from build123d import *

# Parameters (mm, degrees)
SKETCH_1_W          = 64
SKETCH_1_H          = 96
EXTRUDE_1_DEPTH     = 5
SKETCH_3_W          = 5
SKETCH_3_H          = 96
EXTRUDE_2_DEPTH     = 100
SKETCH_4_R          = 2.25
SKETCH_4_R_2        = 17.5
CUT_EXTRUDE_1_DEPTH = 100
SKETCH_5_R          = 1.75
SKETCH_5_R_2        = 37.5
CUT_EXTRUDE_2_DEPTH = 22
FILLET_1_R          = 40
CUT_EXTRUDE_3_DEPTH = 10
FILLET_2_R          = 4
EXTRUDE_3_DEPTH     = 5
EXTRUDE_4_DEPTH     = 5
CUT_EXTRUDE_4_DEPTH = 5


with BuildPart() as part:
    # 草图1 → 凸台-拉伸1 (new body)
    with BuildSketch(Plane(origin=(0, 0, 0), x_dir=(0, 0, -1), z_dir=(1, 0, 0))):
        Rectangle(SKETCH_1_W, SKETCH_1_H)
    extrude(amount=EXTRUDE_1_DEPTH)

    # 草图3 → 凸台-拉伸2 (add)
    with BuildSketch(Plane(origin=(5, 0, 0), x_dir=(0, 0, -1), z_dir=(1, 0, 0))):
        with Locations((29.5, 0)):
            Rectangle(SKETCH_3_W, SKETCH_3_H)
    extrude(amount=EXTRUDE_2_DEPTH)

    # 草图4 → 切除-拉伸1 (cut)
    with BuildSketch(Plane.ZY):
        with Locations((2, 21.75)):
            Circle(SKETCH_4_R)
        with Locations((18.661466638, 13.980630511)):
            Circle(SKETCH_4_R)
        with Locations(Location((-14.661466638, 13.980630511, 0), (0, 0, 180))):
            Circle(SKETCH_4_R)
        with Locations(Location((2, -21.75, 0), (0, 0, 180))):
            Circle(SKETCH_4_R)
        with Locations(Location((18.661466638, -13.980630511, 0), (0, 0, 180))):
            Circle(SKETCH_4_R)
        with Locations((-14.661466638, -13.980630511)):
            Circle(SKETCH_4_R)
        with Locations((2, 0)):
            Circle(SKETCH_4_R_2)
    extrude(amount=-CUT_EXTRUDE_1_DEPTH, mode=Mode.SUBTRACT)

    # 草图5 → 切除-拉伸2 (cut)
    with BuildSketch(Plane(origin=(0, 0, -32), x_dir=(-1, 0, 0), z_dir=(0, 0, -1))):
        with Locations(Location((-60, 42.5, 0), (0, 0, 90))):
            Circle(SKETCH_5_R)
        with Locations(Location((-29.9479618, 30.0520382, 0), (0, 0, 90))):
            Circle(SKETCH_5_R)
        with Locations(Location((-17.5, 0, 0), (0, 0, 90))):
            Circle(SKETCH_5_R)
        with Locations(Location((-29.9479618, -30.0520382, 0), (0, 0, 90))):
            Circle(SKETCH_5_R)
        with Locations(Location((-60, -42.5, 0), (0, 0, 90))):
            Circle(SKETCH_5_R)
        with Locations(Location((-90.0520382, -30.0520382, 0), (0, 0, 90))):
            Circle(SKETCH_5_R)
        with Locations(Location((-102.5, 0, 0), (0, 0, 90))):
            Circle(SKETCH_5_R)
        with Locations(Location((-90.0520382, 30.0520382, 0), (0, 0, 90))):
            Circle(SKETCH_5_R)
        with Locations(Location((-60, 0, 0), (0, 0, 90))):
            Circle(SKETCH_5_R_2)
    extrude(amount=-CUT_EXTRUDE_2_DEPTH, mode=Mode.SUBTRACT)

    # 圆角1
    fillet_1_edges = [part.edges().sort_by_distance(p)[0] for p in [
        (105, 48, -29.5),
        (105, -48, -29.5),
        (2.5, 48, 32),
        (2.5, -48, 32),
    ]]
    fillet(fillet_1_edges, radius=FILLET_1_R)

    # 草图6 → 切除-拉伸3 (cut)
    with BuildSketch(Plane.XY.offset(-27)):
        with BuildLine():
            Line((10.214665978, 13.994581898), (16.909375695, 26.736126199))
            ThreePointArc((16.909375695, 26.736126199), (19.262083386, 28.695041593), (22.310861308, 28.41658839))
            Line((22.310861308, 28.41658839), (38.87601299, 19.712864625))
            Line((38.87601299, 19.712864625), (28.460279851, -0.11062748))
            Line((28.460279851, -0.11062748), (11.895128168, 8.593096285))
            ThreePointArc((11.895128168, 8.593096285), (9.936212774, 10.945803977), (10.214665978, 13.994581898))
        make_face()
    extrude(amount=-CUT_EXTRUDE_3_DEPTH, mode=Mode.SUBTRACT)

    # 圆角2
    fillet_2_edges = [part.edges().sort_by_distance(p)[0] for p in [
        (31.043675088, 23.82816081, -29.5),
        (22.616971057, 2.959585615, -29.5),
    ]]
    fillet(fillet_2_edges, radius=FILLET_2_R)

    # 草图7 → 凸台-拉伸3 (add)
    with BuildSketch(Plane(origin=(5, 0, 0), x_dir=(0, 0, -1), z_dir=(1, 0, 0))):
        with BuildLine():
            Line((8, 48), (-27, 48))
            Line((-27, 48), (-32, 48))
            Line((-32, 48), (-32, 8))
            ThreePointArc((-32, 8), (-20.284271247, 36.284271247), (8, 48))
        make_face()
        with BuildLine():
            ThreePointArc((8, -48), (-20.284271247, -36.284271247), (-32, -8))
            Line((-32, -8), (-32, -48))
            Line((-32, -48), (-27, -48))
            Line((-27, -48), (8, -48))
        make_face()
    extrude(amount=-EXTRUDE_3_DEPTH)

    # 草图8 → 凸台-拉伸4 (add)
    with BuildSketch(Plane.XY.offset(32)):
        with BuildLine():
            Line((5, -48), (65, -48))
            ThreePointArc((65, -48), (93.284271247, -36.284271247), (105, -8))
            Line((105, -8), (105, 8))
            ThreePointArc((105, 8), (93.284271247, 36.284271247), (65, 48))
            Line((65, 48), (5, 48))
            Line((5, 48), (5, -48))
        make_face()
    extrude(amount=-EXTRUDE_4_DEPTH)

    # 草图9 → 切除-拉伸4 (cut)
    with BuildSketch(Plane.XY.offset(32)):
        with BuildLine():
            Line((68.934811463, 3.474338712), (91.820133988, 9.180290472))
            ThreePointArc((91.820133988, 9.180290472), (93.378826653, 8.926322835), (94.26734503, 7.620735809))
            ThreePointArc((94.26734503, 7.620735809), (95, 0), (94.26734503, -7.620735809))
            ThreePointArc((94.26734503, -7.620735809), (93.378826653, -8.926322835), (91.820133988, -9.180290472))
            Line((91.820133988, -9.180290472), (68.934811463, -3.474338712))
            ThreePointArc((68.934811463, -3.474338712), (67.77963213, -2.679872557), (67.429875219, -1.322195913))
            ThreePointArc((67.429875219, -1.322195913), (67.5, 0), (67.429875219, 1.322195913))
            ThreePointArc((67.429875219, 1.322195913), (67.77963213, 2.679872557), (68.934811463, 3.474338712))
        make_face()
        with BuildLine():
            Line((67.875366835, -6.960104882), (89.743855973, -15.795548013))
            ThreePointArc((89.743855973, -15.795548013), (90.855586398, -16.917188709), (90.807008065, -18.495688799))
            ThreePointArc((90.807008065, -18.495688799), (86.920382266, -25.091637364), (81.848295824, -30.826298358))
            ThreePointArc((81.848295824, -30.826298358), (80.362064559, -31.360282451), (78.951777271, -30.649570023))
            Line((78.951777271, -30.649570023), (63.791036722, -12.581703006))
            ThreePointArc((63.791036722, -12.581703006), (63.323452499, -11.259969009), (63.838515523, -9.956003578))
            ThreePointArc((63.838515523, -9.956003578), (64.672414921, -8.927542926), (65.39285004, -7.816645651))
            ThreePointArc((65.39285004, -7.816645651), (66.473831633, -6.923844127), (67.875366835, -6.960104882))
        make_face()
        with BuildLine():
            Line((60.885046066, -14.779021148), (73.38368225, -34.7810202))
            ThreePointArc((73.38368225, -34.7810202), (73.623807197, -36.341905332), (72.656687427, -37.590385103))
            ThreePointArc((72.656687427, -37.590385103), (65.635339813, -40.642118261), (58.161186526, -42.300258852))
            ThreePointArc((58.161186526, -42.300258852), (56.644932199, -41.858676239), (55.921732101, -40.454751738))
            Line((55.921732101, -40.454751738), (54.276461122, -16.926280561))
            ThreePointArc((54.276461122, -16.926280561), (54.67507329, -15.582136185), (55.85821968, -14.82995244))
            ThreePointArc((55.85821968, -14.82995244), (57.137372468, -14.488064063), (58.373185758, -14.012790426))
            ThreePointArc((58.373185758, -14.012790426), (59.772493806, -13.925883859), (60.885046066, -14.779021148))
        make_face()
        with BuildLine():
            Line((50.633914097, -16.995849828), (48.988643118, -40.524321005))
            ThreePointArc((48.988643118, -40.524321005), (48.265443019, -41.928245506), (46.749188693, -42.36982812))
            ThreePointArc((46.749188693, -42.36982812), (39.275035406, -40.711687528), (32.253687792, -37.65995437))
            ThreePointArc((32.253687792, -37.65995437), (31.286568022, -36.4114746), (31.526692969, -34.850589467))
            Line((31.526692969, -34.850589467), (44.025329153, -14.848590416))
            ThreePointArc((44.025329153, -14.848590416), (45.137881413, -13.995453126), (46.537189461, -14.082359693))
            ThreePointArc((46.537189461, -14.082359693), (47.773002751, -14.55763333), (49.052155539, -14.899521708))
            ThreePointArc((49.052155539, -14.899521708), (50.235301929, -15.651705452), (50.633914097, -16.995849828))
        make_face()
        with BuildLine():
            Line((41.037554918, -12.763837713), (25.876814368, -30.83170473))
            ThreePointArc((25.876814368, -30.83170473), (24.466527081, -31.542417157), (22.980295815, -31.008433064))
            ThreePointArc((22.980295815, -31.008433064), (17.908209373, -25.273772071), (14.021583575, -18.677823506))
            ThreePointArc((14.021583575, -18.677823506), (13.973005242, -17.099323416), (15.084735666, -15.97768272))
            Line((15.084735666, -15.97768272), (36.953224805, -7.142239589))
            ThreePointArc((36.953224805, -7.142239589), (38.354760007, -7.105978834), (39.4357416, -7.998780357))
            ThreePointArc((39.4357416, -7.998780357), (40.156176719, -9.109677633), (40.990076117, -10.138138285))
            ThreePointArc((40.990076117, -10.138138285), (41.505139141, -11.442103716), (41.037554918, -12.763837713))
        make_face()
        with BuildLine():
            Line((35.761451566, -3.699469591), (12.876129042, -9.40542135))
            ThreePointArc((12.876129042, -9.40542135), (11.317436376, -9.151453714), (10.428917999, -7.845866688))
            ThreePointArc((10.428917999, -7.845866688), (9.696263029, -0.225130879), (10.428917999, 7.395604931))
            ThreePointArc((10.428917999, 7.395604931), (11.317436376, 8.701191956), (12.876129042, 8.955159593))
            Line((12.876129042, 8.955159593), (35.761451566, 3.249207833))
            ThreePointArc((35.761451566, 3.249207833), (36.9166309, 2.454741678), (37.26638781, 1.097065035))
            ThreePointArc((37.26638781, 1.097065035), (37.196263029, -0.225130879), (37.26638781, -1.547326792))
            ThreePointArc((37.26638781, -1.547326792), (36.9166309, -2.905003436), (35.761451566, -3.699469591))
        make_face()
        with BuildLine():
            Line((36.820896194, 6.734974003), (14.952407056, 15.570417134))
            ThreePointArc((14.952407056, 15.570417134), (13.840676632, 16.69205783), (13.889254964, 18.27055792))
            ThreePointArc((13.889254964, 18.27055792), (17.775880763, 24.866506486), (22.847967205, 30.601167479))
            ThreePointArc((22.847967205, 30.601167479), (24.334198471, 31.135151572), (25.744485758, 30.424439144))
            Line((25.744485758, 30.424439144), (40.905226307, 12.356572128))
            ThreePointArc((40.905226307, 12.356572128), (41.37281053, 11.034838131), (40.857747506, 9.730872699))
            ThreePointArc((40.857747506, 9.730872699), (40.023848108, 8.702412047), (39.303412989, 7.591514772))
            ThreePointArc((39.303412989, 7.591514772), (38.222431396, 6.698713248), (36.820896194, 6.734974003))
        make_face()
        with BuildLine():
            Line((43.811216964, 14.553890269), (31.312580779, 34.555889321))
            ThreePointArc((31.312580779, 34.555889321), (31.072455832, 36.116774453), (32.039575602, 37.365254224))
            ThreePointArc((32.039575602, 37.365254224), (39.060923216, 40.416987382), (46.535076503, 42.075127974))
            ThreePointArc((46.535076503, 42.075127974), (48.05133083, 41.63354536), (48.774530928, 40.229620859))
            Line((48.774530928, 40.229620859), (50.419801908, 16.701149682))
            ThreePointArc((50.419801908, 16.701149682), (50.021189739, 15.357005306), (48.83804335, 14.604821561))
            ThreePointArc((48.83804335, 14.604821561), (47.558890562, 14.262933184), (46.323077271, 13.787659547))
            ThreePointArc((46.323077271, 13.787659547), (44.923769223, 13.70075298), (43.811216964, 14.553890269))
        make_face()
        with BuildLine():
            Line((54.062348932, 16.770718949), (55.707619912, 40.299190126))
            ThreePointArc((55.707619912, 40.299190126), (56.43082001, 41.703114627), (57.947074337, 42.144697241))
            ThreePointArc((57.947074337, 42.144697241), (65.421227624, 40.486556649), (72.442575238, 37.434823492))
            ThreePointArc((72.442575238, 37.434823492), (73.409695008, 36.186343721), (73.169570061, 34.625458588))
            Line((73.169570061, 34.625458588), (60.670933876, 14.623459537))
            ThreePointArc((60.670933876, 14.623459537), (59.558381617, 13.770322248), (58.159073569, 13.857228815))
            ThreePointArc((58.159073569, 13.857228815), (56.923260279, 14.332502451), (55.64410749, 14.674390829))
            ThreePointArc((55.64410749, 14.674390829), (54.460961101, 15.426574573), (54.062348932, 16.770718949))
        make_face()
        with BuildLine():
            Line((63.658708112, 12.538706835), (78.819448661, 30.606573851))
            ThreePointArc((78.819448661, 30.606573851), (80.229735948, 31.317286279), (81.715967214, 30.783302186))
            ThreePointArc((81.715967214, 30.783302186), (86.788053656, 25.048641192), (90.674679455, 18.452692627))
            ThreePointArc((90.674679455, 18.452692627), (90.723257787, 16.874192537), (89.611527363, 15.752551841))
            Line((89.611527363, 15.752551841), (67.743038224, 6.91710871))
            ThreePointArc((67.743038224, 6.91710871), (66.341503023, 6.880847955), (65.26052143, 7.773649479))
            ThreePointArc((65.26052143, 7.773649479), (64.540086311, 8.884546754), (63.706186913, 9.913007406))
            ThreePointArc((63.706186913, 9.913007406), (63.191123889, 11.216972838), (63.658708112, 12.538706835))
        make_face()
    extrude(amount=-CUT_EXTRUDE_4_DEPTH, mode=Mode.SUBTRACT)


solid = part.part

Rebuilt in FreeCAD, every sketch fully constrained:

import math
import FreeCAD as App
import Part
import Sketcher
Q = App.Units.Quantity


def edges_at(feature, points):
    """Names of the edges that pass closest to the given points."""
    edges = feature.Shape.Edges
    near = lambda p: min(range(len(edges)), key=lambda i: edges[i].distToShape(Part.Vertex(*p))[0])
    return sorted({f"Edge{near(p) + 1}" for p in points})

doc = App.newDocument("Part")
body = doc.addObject("PartDesign::Body", "Body")

sketch1 = doc.addObject("Sketcher::SketchObject", "Sketch")
body.addObject(sketch1)
sketch1.AttachmentSupport = (doc.YZ_Plane, [""])
sketch1.MapMode = "FlatFace"
sketch1.addGeometry(Part.LineSegment(App.Vector(48, 32, 0), App.Vector(-48, 32, 0)), False)
sketch1.addGeometry(Part.LineSegment(App.Vector(-48, 32, 0), App.Vector(-48, -32, 0)), False)
sketch1.addGeometry(Part.LineSegment(App.Vector(-48, -32, 0), App.Vector(48, -32, 0)), False)
sketch1.addGeometry(Part.LineSegment(App.Vector(48, -32, 0), App.Vector(48, 32, 0)), False)
sketch1.addConstraint(Sketcher.Constraint("Coincident", 0, 2, 1, 1))
sketch1.addConstraint(Sketcher.Constraint("Coincident", 1, 2, 2, 1))
sketch1.addConstraint(Sketcher.Constraint("Coincident", 2, 2, 3, 1))
sketch1.addConstraint(Sketcher.Constraint("Coincident", 3, 2, 0, 1))
sketch1.addConstraint(Sketcher.Constraint("Horizontal", 0))
sketch1.addConstraint(Sketcher.Constraint("Vertical", 1))
sketch1.addConstraint(Sketcher.Constraint("Horizontal", 2))
sketch1.addConstraint(Sketcher.Constraint("Vertical", 3))
sketch1.addConstraint(Sketcher.Constraint("Symmetric", 0, 2, 2, 2, -1, 1))
sketch1.addConstraint(Sketcher.Constraint("DistanceX", 0, 2, 0, 1, 96.0))
sketch1.addConstraint(Sketcher.Constraint("DistanceY", 1, 2, 1, 1, 64.0))
pad1 = doc.addObject("PartDesign::Pad", "Pad")
body.addObject(pad1)
pad1.Profile = sketch1
pad1.Length = 5

sketch2 = doc.addObject("Sketcher::SketchObject", "Sketch001")
body.addObject(sketch2)
sketch2.AttachmentSupport = (doc.YZ_Plane, [""])
sketch2.MapMode = "FlatFace"
sketch2.AttachmentOffset = App.Placement(App.Vector(0, 0, 5), App.Rotation())
sketch2.addGeometry(Part.LineSegment(App.Vector(48, -27, 0), App.Vector(-48, -27, 0)), False)
sketch2.addGeometry(Part.LineSegment(App.Vector(-48, -27, 0), App.Vector(-48, -32, 0)), False)
sketch2.addGeometry(Part.LineSegment(App.Vector(-48, -32, 0), App.Vector(48, -32, 0)), False)
sketch2.addGeometry(Part.LineSegment(App.Vector(48, -32, 0), App.Vector(48, -27, 0)), False)
sketch2.addConstraint(Sketcher.Constraint("Coincident", 0, 2, 1, 1))
sketch2.addConstraint(Sketcher.Constraint("Coincident", 1, 2, 2, 1))
sketch2.addConstraint(Sketcher.Constraint("Coincident", 2, 2, 3, 1))
sketch2.addConstraint(Sketcher.Constraint("Coincident", 3, 2, 0, 1))
sketch2.addConstraint(Sketcher.Constraint("Horizontal", 0))
sketch2.addConstraint(Sketcher.Constraint("Vertical", 1))
sketch2.addConstraint(Sketcher.Constraint("Horizontal", 2))
sketch2.addConstraint(Sketcher.Constraint("Vertical", 3))
sketch2.addConstraint(Sketcher.Constraint("DistanceX", 0, 2, 0, 1, 96.0))
sketch2.addConstraint(Sketcher.Constraint("DistanceY", 1, 2, 1, 1, 5.0))
sketch2.addConstraint(Sketcher.Constraint("DistanceX", 0, 2, -1, 1, 48.0))
sketch2.addConstraint(Sketcher.Constraint("DistanceY", 0, 2, -1, 1, 27.0))
pad2 = doc.addObject("PartDesign::Pad", "Pad001")
body.addObject(pad2)
pad2.Profile = sketch2
pad2.Length = 100

sketch3 = doc.addObject("Sketcher::SketchObject", "Sketch002")
body.addObject(sketch3)
sketch3.AttachmentSupport = (doc.YZ_Plane, [""])
sketch3.MapMode = "FlatFace"
sketch3.addGeometry(Part.Circle(App.Vector(21.8, 2, 0), App.Vector(0, 0, 1), 2.2), False)
sketch3.addGeometry(Part.Circle(App.Vector(14, 18.7, 0), App.Vector(0, 0, 1), 2.2), False)
sketch3.addGeometry(Part.Circle(App.Vector(14, -14.7, 0), App.Vector(0, 0, 1), 2.2), False)
sketch3.addGeometry(Part.Circle(App.Vector(-21.8, 2, 0), App.Vector(0, 0, 1), 2.2), False)
sketch3.addGeometry(Part.Circle(App.Vector(-14, 18.7, 0), App.Vector(0, 0, 1), 2.2), False)
sketch3.addGeometry(Part.Circle(App.Vector(-14, -14.7, 0), App.Vector(0, 0, 1), 2.2), False)
sketch3.addGeometry(Part.Circle(App.Vector(0, 2, 0), App.Vector(0, 0, 1), 17.5), False)
sketch3.addConstraint(Sketcher.Constraint("Equal", 0, 1))
sketch3.addConstraint(Sketcher.Constraint("Equal", 1, 2))
sketch3.addConstraint(Sketcher.Constraint("Equal", 2, 3))
sketch3.addConstraint(Sketcher.Constraint("Equal", 3, 4))
sketch3.addConstraint(Sketcher.Constraint("Equal", 4, 5))
sketch3.addConstraint(Sketcher.Constraint("Symmetric", 0, 3, 3, 3, -2))
sketch3.addConstraint(Sketcher.Constraint("Symmetric", 1, 3, 4, 3, -2))
sketch3.addConstraint(Sketcher.Constraint("Symmetric", 2, 3, 5, 3, -2))
sketch3.addConstraint(Sketcher.Constraint("PointOnObject", 6, 3, -2))
sketch3.addConstraint(Sketcher.Constraint("Horizontal", 3, 3, 6, 3))
sketch3.addConstraint(Sketcher.Constraint("Vertical", 1, 3, 2, 3))
sketch3.addConstraint(Sketcher.Constraint("Diameter", 6, 35.0))
sketch3.addConstraint(Sketcher.Constraint("Diameter", 0, 4.5))
sketch3.addConstraint(Sketcher.Constraint("DistanceY", -1, 1, 0, 3, 2.0))
sketch3.addConstraint(Sketcher.Constraint("DistanceX", 3, 3, 0, 3, 43.5))
sketch3.addConstraint(Sketcher.Constraint("DistanceX", -1, 1, 1, 3, 13.980631))
sketch3.addConstraint(Sketcher.Constraint("DistanceY", -1, 1, 1, 3, 18.661467))
sketch3.addConstraint(Sketcher.Constraint("DistanceY", 2, 3, -1, 1, 14.661467))
pocket1 = doc.addObject("PartDesign::Pocket", "Pocket")
body.addObject(pocket1)
pocket1.Profile = sketch3
pocket1.Length = 100
pocket1.Reversed = True

sketch4 = doc.addObject("Sketcher::SketchObject", "Sketch003")
body.addObject(sketch4)
sketch4.AttachmentSupport = (doc.XY_Plane, [""])
sketch4.MapMode = "FlatFace"
sketch4.AttachmentOffset = App.Placement(App.Vector(0, 0, -32), App.Rotation())
sketch4.addGeometry(Part.Circle(App.Vector(60, 42.5, 0), App.Vector(0, 0, 1), 1.8), False)
sketch4.addGeometry(Part.Circle(App.Vector(29.9, 30.1, 0), App.Vector(0, 0, 1), 1.8), False)
sketch4.addGeometry(Part.Circle(App.Vector(17.5, 0, 0), App.Vector(0, 0, 1), 1.8), False)
sketch4.addGeometry(Part.Circle(App.Vector(29.9, -30.1, 0), App.Vector(0, 0, 1), 1.8), False)
sketch4.addGeometry(Part.Circle(App.Vector(60, -42.5, 0), App.Vector(0, 0, 1), 1.8), False)
sketch4.addGeometry(Part.Circle(App.Vector(90.1, -30.1, 0), App.Vector(0, 0, 1), 1.8), False)
sketch4.addGeometry(Part.Circle(App.Vector(102.5, 0, 0), App.Vector(0, 0, 1), 1.8), False)
sketch4.addGeometry(Part.Circle(App.Vector(90.1, 30.1, 0), App.Vector(0, 0, 1), 1.8), False)
sketch4.addGeometry(Part.Circle(App.Vector(60, 0, 0), App.Vector(0, 0, 1), 37.5), False)
sketch4.addConstraint(Sketcher.Constraint("Equal", 0, 1))
sketch4.addConstraint(Sketcher.Constraint("Equal", 1, 2))
sketch4.addConstraint(Sketcher.Constraint("Equal", 2, 3))
sketch4.addConstraint(Sketcher.Constraint("Equal", 3, 4))
sketch4.addConstraint(Sketcher.Constraint("Equal", 4, 5))
sketch4.addConstraint(Sketcher.Constraint("Equal", 5, 6))
sketch4.addConstraint(Sketcher.Constraint("Equal", 6, 7))
sketch4.addConstraint(Sketcher.Constraint("Symmetric", 1, 3, 3, 3, -1))
sketch4.addConstraint(Sketcher.Constraint("Symmetric", 0, 3, 4, 3, -1))
sketch4.addConstraint(Sketcher.Constraint("Symmetric", 5, 3, 7, 3, -1))
sketch4.addConstraint(Sketcher.Constraint("PointOnObject", 2, 3, -1))
sketch4.addConstraint(Sketcher.Constraint("PointOnObject", 6, 3, -1))
sketch4.addConstraint(Sketcher.Constraint("PointOnObject", 8, 3, -1))
sketch4.addConstraint(Sketcher.Constraint("Horizontal", 3, 3, 5, 3))
sketch4.addConstraint(Sketcher.Constraint("Vertical", 4, 3, 8, 3))
sketch4.addConstraint(Sketcher.Constraint("Diameter", 8, 75.0))
sketch4.addConstraint(Sketcher.Constraint("Diameter", 0, 3.5))
sketch4.addConstraint(Sketcher.Constraint("DistanceX", -1, 1, 0, 3, 60.0))
sketch4.addConstraint(Sketcher.Constraint("DistanceY", 4, 3, 0, 3, 85.0))
sketch4.addConstraint(Sketcher.Constraint("DistanceX", -1, 1, 2, 3, 17.5))
sketch4.addConstraint(Sketcher.Constraint("DistanceX", -1, 1, 6, 3, 102.5))
sketch4.addConstraint(Sketcher.Constraint("DistanceX", -1, 1, 1, 3, 29.947962))
sketch4.addConstraint(Sketcher.Constraint("DistanceY", -1, 1, 1, 3, 30.052038))
sketch4.addConstraint(Sketcher.Constraint("DistanceX", -1, 1, 5, 3, 90.052038))
pocket2 = doc.addObject("PartDesign::Pocket", "Pocket001")
body.addObject(pocket2)
pocket2.Profile = sketch4
pocket2.Length = 22
pocket2.Reversed = True
doc.recompute()

fillet = doc.addObject("PartDesign::Fillet", "Fillet")
body.addObject(fillet)
fillet.Base = (pocket2, edges_at(pocket2, [
    (105, 48, -29.5),
    (105, -48, -29.5),
    (2.5, 48, 32),
    (2.5, -48, 32),
]))
fillet.Radius = 40

sketch5 = doc.addObject("Sketcher::SketchObject", "Sketch004")
body.addObject(sketch5)
sketch5.AttachmentSupport = (doc.XY_Plane, [""])
sketch5.MapMode = "FlatFace"
sketch5.AttachmentOffset = App.Placement(App.Vector(0, 0, -27), App.Rotation())
sketch5.addGeometry(Part.LineSegment(App.Vector(16.9, 26.7, 0), App.Vector(10.2, 14, 0)), False)
sketch5.addGeometry(Part.ArcOfCircle(Part.Circle(App.Vector(13.8, 12.1, 0), App.Vector(0, 0, 1), 4), math.radians(152), math.radians(242)), False)
sketch5.addGeometry(Part.LineSegment(App.Vector(11.9, 8.6, 0), App.Vector(28.5, -0.1, 0)), False)
sketch5.addGeometry(Part.LineSegment(App.Vector(28.5, -0.1, 0), App.Vector(38.9, 19.7, 0)), False)
sketch5.addGeometry(Part.LineSegment(App.Vector(38.9, 19.7, 0), App.Vector(22.3, 28.4, 0)), False)
sketch5.addGeometry(Part.ArcOfCircle(Part.Circle(App.Vector(20.5, 24.9, 0), App.Vector(0, 0, 1), 4), math.radians(62), math.radians(152)), False)
sketch5.addConstraint(Sketcher.Constraint("Tangent", 0, 2, 1, 1))
sketch5.addConstraint(Sketcher.Constraint("Tangent", 1, 2, 2, 1))
sketch5.addConstraint(Sketcher.Constraint("Coincident", 2, 2, 3, 1))
sketch5.addConstraint(Sketcher.Constraint("Coincident", 3, 2, 4, 1))
sketch5.addConstraint(Sketcher.Constraint("Tangent", 4, 2, 5, 1))
sketch5.addConstraint(Sketcher.Constraint("Tangent", 5, 2, 0, 1))
sketch5.addConstraint(Sketcher.Constraint("Equal", 1, 5))
sketch5.addConstraint(Sketcher.Constraint("Perpendicular", 0, 2))
sketch5.addConstraint(Sketcher.Constraint("Perpendicular", 2, 3))
sketch5.addConstraint(Sketcher.Constraint("Perpendicular", 3, 4))
sketch5.addConstraint(Sketcher.Constraint("Radius", 1, 4.0))
sketch5.addConstraint(Sketcher.Constraint("DistanceX", -1, 1, 1, 3, 13.75564))
sketch5.addConstraint(Sketcher.Constraint("DistanceY", -1, 1, 1, 3, 12.13407))
sketch5.addConstraint(Sketcher.Constraint("DistanceX", -1, 1, 5, 3, 20.45035))
sketch5.addConstraint(Sketcher.Constraint("DistanceY", -1, 1, 0, 2, 13.994582))
sketch5.addConstraint(Sketcher.Constraint("DistanceX", -1, 1, 2, 2, 28.46028))
pocket3 = doc.addObject("PartDesign::Pocket", "Pocket002")
body.addObject(pocket3)
pocket3.Profile = sketch5
pocket3.Length = 10
doc.recompute()

fillet2 = doc.addObject("PartDesign::Fillet", "Fillet001")
body.addObject(fillet2)
fillet2.Base = (pocket3, edges_at(pocket3, [(31.044, 23.828, -29.5), (22.617, 2.96, -29.5)]))
fillet2.Radius = 4

sketch6 = doc.addObject("Sketcher::SketchObject", "Sketch005")
body.addObject(sketch6)
sketch6.AttachmentSupport = (doc.YZ_Plane, [""])
sketch6.MapMode = "FlatFace"
sketch6.AttachmentOffset = App.Placement(App.Vector(0, 0, 5), App.Rotation())
sketch6.addGeometry(Part.LineSegment(App.Vector(48, -8, 0), App.Vector(48, 32, 0)), False)
sketch6.addGeometry(Part.LineSegment(App.Vector(48, 32, 0), App.Vector(8, 32, 0)), False)
sketch6.addGeometry(Part.ArcOfCircle(Part.Circle(App.Vector(8, -8, 0), App.Vector(0, 0, 1), 40), math.radians(0), math.radians(90)), False)
sketch6.addGeometry(Part.ArcOfCircle(Part.Circle(App.Vector(-8, -8, 0), App.Vector(0, 0, 1), 40), math.radians(90), math.radians(180)), False)
sketch6.addGeometry(Part.LineSegment(App.Vector(-8, 32, 0), App.Vector(-48, 32, 0)), False)
sketch6.addGeometry(Part.LineSegment(App.Vector(-48, 32, 0), App.Vector(-48, -8, 0)), False)
sketch6.addConstraint(Sketcher.Constraint("Coincident", 0, 2, 1, 1))
sketch6.addConstraint(Sketcher.Constraint("Tangent", 1, 2, 2, 2))
sketch6.addConstraint(Sketcher.Constraint("Tangent", 2, 1, 0, 1))
sketch6.addConstraint(Sketcher.Constraint("Tangent", 3, 1, 4, 1))
sketch6.addConstraint(Sketcher.Constraint("Coincident", 4, 2, 5, 1))
sketch6.addConstraint(Sketcher.Constraint("Tangent", 5, 2, 3, 2))
sketch6.addConstraint(Sketcher.Constraint("Vertical", 0))
sketch6.addConstraint(Sketcher.Constraint("Horizontal", 1))
sketch6.addConstraint(Sketcher.Constraint("Horizontal", 4))
sketch6.addConstraint(Sketcher.Constraint("Vertical", 5))
sketch6.addConstraint(Sketcher.Constraint("Equal", 2, 3))
sketch6.addConstraint(Sketcher.Constraint("Symmetric", 2, 3, 3, 3, -2))
sketch6.addConstraint(Sketcher.Constraint("Radius", 2, 40.0))
sketch6.addConstraint(Sketcher.Constraint("DistanceX", -1, 1, 2, 3, 8.0))
sketch6.addConstraint(Sketcher.Constraint("DistanceY", 2, 3, -1, 1, 8.0))
pad3 = doc.addObject("PartDesign::Pad", "Pad002")
body.addObject(pad3)
pad3.Profile = sketch6
pad3.Length = 5
pad3.Reversed = True

sketch7 = doc.addObject("Sketcher::SketchObject", "Sketch006")
body.addObject(sketch7)
sketch7.AttachmentSupport = (doc.XY_Plane, [""])
sketch7.MapMode = "FlatFace"
sketch7.AttachmentOffset = App.Placement(App.Vector(0, 0, 32), App.Rotation())
sketch7.addGeometry(Part.LineSegment(App.Vector(5, -48, 0), App.Vector(65, -48, 0)), False)
sketch7.addGeometry(Part.ArcOfCircle(Part.Circle(App.Vector(65, -8, 0), App.Vector(0, 0, 1), 40), math.radians(-90), math.radians(0)), False)
sketch7.addGeometry(Part.LineSegment(App.Vector(105, -8, 0), App.Vector(105, 8, 0)), False)
sketch7.addGeometry(Part.ArcOfCircle(Part.Circle(App.Vector(65, 8, 0), App.Vector(0, 0, 1), 40), math.radians(0), math.radians(90)), False)
sketch7.addGeometry(Part.LineSegment(App.Vector(65, 48, 0), App.Vector(5, 48, 0)), False)
sketch7.addGeometry(Part.LineSegment(App.Vector(5, 48, 0), App.Vector(5, -48, 0)), False)
sketch7.addConstraint(Sketcher.Constraint("Tangent", 0, 2, 1, 1))
sketch7.addConstraint(Sketcher.Constraint("Tangent", 1, 2, 2, 1))
sketch7.addConstraint(Sketcher.Constraint("Tangent", 2, 2, 3, 1))
sketch7.addConstraint(Sketcher.Constraint("Tangent", 3, 2, 4, 1))
sketch7.addConstraint(Sketcher.Constraint("Coincident", 4, 2, 5, 1))
sketch7.addConstraint(Sketcher.Constraint("Coincident", 5, 2, 0, 1))
sketch7.addConstraint(Sketcher.Constraint("Horizontal", 0))
sketch7.addConstraint(Sketcher.Constraint("Vertical", 2))
sketch7.addConstraint(Sketcher.Constraint("Horizontal", 4))
sketch7.addConstraint(Sketcher.Constraint("Vertical", 5))
sketch7.addConstraint(Sketcher.Constraint("Equal", 1, 3))
sketch7.addConstraint(Sketcher.Constraint("Radius", 1, 40.0))
sketch7.addConstraint(Sketcher.Constraint("DistanceX", 0, 1, 0, 2, 60.0))
sketch7.addConstraint(Sketcher.Constraint("DistanceY", 2, 1, 2, 2, 16.0))
sketch7.addConstraint(Sketcher.Constraint("DistanceX", -1, 1, 1, 3, 65.0))
sketch7.addConstraint(Sketcher.Constraint("DistanceY", 1, 3, -1, 1, 8.0))
pad4 = doc.addObject("PartDesign::Pad", "Pad003")
body.addObject(pad4)
pad4.Profile = sketch7
pad4.Length = 5
pad4.Reversed = True

sketch8 = doc.addObject("Sketcher::SketchObject", "Sketch007")
body.addObject(sketch8)
sketch8.AttachmentSupport = (doc.XY_Plane, [""])
sketch8.MapMode = "FlatFace"
sketch8.AttachmentOffset = App.Placement(App.Vector(0, 0, 32), App.Rotation())
sketch8.addGeometry(Part.LineSegment(App.Vector(91.8, 9.2, 0), App.Vector(68.9, 3.5, 0)), False)
sketch8.addGeometry(Part.ArcOfCircle(Part.Circle(App.Vector(69.4, 1.5, 0), App.Vector(0, 0, 1), 2), math.radians(104), math.radians(186)), False)
sketch8.addGeometry(Part.ArcOfCircle(Part.Circle(App.Vector(55, 0, 0), App.Vector(0, 0, 1), 12.5), math.radians(-6.07), math.radians(6.07)), False)
sketch8.addGeometry(Part.ArcOfCircle(Part.Circle(App.Vector(69.4, -1.5, 0), App.Vector(0, 0, 1), 2), math.radians(174), math.radians(256)), False)
sketch8.addGeometry(Part.LineSegment(App.Vector(68.9, -3.5, 0), App.Vector(91.8, -9.2, 0)), False)
sketch8.addGeometry(Part.ArcOfCircle(Part.Circle(App.Vector(92.3, -7.2, 0), App.Vector(0, 0, 1), 2), math.radians(-104), math.radians(-11)), False)
sketch8.addGeometry(Part.ArcOfCircle(Part.Circle(App.Vector(55, 0, 0), App.Vector(0, 0, 1), 40), math.radians(-11), math.radians(11)), False)
sketch8.addGeometry(Part.ArcOfCircle(Part.Circle(App.Vector(92.3, 7.2, 0), App.Vector(0, 0, 1), 2), math.radians(11), math.radians(104)), False)
sketch8.addGeometry(Part.LineSegment(App.Vector(89.7, -15.8, 0), App.Vector(67.9, -7, 0)), False)
sketch8.addGeometry(Part.ArcOfCircle(Part.Circle(App.Vector(67.1, -8.8, 0), App.Vector(0, 0, 1), 2), math.radians(68), math.radians(150)), False)
sketch8.addGeometry(Part.ArcOfCircle(Part.Circle(App.Vector(54.6, -1.6, 0), App.Vector(0, 0, 1), 12.5), math.radians(-42.07), math.radians(-29.93)), False)
sketch8.addGeometry(Part.ArcOfCircle(Part.Circle(App.Vector(65.3, -11.3, 0), App.Vector(0, 0, 1), 2), math.radians(138), math.radians(220)), False)
sketch8.addGeometry(Part.LineSegment(App.Vector(63.8, -12.6, 0), App.Vector(79, -30.6, 0)), False)
sketch8.addGeometry(Part.ArcOfCircle(Part.Circle(App.Vector(80.5, -29.4, 0), App.Vector(0, 0, 1), 2), math.radians(-140), math.radians(-47)), False)
sketch8.addGeometry(Part.ArcOfCircle(Part.Circle(App.Vector(54.6, -1.6, 0), App.Vector(0, 0, 1), 40), math.radians(-47), math.radians(-25)), False)
sketch8.addGeometry(Part.ArcOfCircle(Part.Circle(App.Vector(89, -17.6, 0), App.Vector(0, 0, 1), 2), math.radians(-25), math.radians(68)), False)
sketch8.addGeometry(Part.LineSegment(App.Vector(73.4, -34.8, 0), App.Vector(60.9, -14.8, 0)), False)
sketch8.addGeometry(Part.ArcOfCircle(Part.Circle(App.Vector(59.2, -15.8, 0), App.Vector(0, 0, 1), 2), math.radians(32), math.radians(114)), False)
sketch8.addGeometry(Part.ArcOfCircle(Part.Circle(App.Vector(53.3, -2.6, 0), App.Vector(0, 0, 1), 12.5), math.radians(-78.07), math.radians(-65.93)), False)
sketch8.addGeometry(Part.ArcOfCircle(Part.Circle(App.Vector(56.3, -16.8, 0), App.Vector(0, 0, 1), 2), math.radians(102), math.radians(184)), False)
sketch8.addGeometry(Part.LineSegment(App.Vector(54.3, -16.9, 0), App.Vector(55.9, -40.5, 0)), False)
sketch8.addGeometry(Part.ArcOfCircle(Part.Circle(App.Vector(57.9, -40.3, 0), App.Vector(0, 0, 1), 2), math.radians(-176), math.radians(-83)), False)
sketch8.addGeometry(Part.ArcOfCircle(Part.Circle(App.Vector(53.3, -2.6, 0), App.Vector(0, 0, 1), 40), math.radians(-83), math.radians(-61)), False)
sketch8.addGeometry(Part.ArcOfCircle(Part.Circle(App.Vector(71.7, -35.8, 0), App.Vector(0, 0, 1), 2), math.radians(-61), math.radians(32)), False)
sketch8.addGeometry(Part.LineSegment(App.Vector(49, -40.5, 0), App.Vector(50.6, -17, 0)), False)
sketch8.addGeometry(Part.ArcOfCircle(Part.Circle(App.Vector(48.6, -16.9, 0), App.Vector(0, 0, 1), 2), math.radians(-4), math.radians(78)), False)
sketch8.addGeometry(Part.ArcOfCircle(Part.Circle(App.Vector(51.6, -2.7, 0), App.Vector(0, 0, 1), 12.5), math.radians(-114.07), math.radians(-101.93)), False)
sketch8.addGeometry(Part.ArcOfCircle(Part.Circle(App.Vector(45.7, -15.9, 0), App.Vector(0, 0, 1), 2), math.radians(66), math.radians(148)), False)
sketch8.addGeometry(Part.LineSegment(App.Vector(44, -14.8, 0), App.Vector(31.5, -34.9, 0)), False)
sketch8.addGeometry(Part.ArcOfCircle(Part.Circle(App.Vector(33.2, -35.9, 0), App.Vector(0, 0, 1), 2), math.radians(148), math.radians(241)), False)
sketch8.addGeometry(Part.ArcOfCircle(Part.Circle(App.Vector(51.6, -2.7, 0), App.Vector(0, 0, 1), 40), math.radians(-119), math.radians(-97)), False)
sketch8.addGeometry(Part.ArcOfCircle(Part.Circle(App.Vector(47, -40.4, 0), App.Vector(0, 0, 1), 2), math.radians(-97), math.radians(-4)), False)
sketch8.addGeometry(Part.LineSegment(App.Vector(25.9, -30.8, 0), App.Vector(41, -12.8, 0)), False)
sketch8.addGeometry(Part.ArcOfCircle(Part.Circle(App.Vector(39.5, -11.5, 0), App.Vector(0, 0, 1), 2), math.radians(-40), math.radians(42)), False)
sketch8.addGeometry(Part.ArcOfCircle(Part.Circle(App.Vector(50.3, -1.8, 0), App.Vector(0, 0, 1), 12.5), math.radians(-150.07), math.radians(-137.93)), False)
sketch8.addGeometry(Part.ArcOfCircle(Part.Circle(App.Vector(37.7, -9, 0), App.Vector(0, 0, 1), 2), math.radians(30), math.radians(112)), False)
sketch8.addGeometry(Part.LineSegment(App.Vector(37, -7.1, 0), App.Vector(15.1, -16, 0)), False)
sketch8.addGeometry(Part.ArcOfCircle(Part.Circle(App.Vector(15.8, -17.8, 0), App.Vector(0, 0, 1), 2), math.radians(112), math.radians(205)), False)
sketch8.addGeometry(Part.ArcOfCircle(Part.Circle(App.Vector(50.3, -1.8, 0), App.Vector(0, 0, 1), 40), math.radians(-155), math.radians(-133)), False)
sketch8.addGeometry(Part.ArcOfCircle(Part.Circle(App.Vector(24.3, -29.5, 0), App.Vector(0, 0, 1), 2), math.radians(-133), math.radians(-40)), False)
sketch8.addGeometry(Part.LineSegment(App.Vector(12.9, -9.4, 0), App.Vector(35.8, -3.7, 0)), False)
sketch8.addGeometry(Part.ArcOfCircle(Part.Circle(App.Vector(35.3, -1.8, 0), App.Vector(0, 0, 1), 2), math.radians(-76), math.radians(6)), False)
sketch8.addGeometry(Part.ArcOfCircle(Part.Circle(App.Vector(49.7, -0.2, 0), App.Vector(0, 0, 1), 12.5), math.radians(173.93), math.radians(186.07)), False)
sketch8.addGeometry(Part.ArcOfCircle(Part.Circle(App.Vector(35.3, 1.3, 0), App.Vector(0, 0, 1), 2), math.radians(-6), math.radians(76)), False)
sketch8.addGeometry(Part.LineSegment(App.Vector(35.8, 3.2, 0), App.Vector(12.9, 9, 0)), False)
sketch8.addGeometry(Part.ArcOfCircle(Part.Circle(App.Vector(12.4, 7, 0), App.Vector(0, 0, 1), 2), math.radians(76), math.radians(169)), False)
sketch8.addGeometry(Part.ArcOfCircle(Part.Circle(App.Vector(49.7, -0.2, 0), App.Vector(0, 0, 1), 40), math.radians(169), math.radians(191)), False)
sketch8.addGeometry(Part.ArcOfCircle(Part.Circle(App.Vector(12.4, -7.5, 0), App.Vector(0, 0, 1), 2), math.radians(-169), math.radians(-76)), False)
sketch8.addGeometry(Part.LineSegment(App.Vector(15, 15.6, 0), App.Vector(36.8, 6.7, 0)), False)
sketch8.addGeometry(Part.ArcOfCircle(Part.Circle(App.Vector(37.6, 8.6, 0), App.Vector(0, 0, 1), 2), math.radians(-112), math.radians(-30)), False)
sketch8.addGeometry(Part.ArcOfCircle(Part.Circle(App.Vector(50.1, 1.4, 0), App.Vector(0, 0, 1), 12.5), math.radians(137.93), math.radians(150.07)), False)
sketch8.addGeometry(Part.ArcOfCircle(Part.Circle(App.Vector(39.4, 11.1, 0), App.Vector(0, 0, 1), 2), math.radians(-42), math.radians(40)), False)
sketch8.addGeometry(Part.LineSegment(App.Vector(40.9, 12.4, 0), App.Vector(25.7, 30.4, 0)), False)
sketch8.addGeometry(Part.ArcOfCircle(Part.Circle(App.Vector(24.2, 29.1, 0), App.Vector(0, 0, 1), 2), math.radians(40), math.radians(133)), False)
sketch8.addGeometry(Part.ArcOfCircle(Part.Circle(App.Vector(50.1, 1.4, 0), App.Vector(0, 0, 1), 40), math.radians(133), math.radians(155)), False)
sketch8.addGeometry(Part.ArcOfCircle(Part.Circle(App.Vector(15.7, 17.4, 0), App.Vector(0, 0, 1), 2), math.radians(155), math.radians(248)), False)
sketch8.addGeometry(Part.LineSegment(App.Vector(31.3, 34.6, 0), App.Vector(43.8, 14.6, 0)), False)
sketch8.addGeometry(Part.ArcOfCircle(Part.Circle(App.Vector(45.5, 15.6, 0), App.Vector(0, 0, 1), 2), math.radians(-148), math.radians(-66)), False)
sketch8.addGeometry(Part.ArcOfCircle(Part.Circle(App.Vector(51.4, 2.4, 0), App.Vector(0, 0, 1), 12.5), math.radians(101.93), math.radians(114.07)), False)
sketch8.addGeometry(Part.ArcOfCircle(Part.Circle(App.Vector(48.4, 16.6, 0), App.Vector(0, 0, 1), 2), math.radians(-78), math.radians(4)), False)
sketch8.addGeometry(Part.LineSegment(App.Vector(50.4, 16.7, 0), App.Vector(48.8, 40.2, 0)), False)
sketch8.addGeometry(Part.ArcOfCircle(Part.Circle(App.Vector(46.8, 40.1, 0), App.Vector(0, 0, 1), 2), math.radians(4), math.radians(97)), False)
sketch8.addGeometry(Part.ArcOfCircle(Part.Circle(App.Vector(51.4, 2.4, 0), App.Vector(0, 0, 1), 40), math.radians(97), math.radians(119)), False)
sketch8.addGeometry(Part.ArcOfCircle(Part.Circle(App.Vector(33, 35.6, 0), App.Vector(0, 0, 1), 2), math.radians(119), math.radians(212)), False)
sketch8.addGeometry(Part.LineSegment(App.Vector(55.7, 40.3, 0), App.Vector(54.1, 16.8, 0)), False)
sketch8.addGeometry(Part.ArcOfCircle(Part.Circle(App.Vector(56.1, 16.6, 0), App.Vector(0, 0, 1), 2), math.radians(176), math.radians(258)), False)
sketch8.addGeometry(Part.ArcOfCircle(Part.Circle(App.Vector(53.1, 2.4, 0), App.Vector(0, 0, 1), 12.5), math.radians(65.93), math.radians(78.07)), False)
sketch8.addGeometry(Part.ArcOfCircle(Part.Circle(App.Vector(59, 15.7, 0), App.Vector(0, 0, 1), 2), math.radians(-114), math.radians(-32)), False)
sketch8.addGeometry(Part.LineSegment(App.Vector(60.7, 14.6, 0), App.Vector(73.2, 34.6, 0)), False)
sketch8.addGeometry(Part.ArcOfCircle(Part.Circle(App.Vector(71.5, 35.7, 0), App.Vector(0, 0, 1), 2), math.radians(-32), math.radians(61)), False)
sketch8.addGeometry(Part.ArcOfCircle(Part.Circle(App.Vector(53.1, 2.4, 0), App.Vector(0, 0, 1), 40), math.radians(61), math.radians(83)), False)
sketch8.addGeometry(Part.ArcOfCircle(Part.Circle(App.Vector(57.7, 40.2, 0), App.Vector(0, 0, 1), 2), math.radians(83), math.radians(176)), False)
sketch8.addGeometry(Part.LineSegment(App.Vector(78.8, 30.6, 0), App.Vector(63.7, 12.5, 0)), False)
sketch8.addGeometry(Part.ArcOfCircle(Part.Circle(App.Vector(65.2, 11.3, 0), App.Vector(0, 0, 1), 2), math.radians(140), math.radians(222)), False)
sketch8.addGeometry(Part.ArcOfCircle(Part.Circle(App.Vector(54.4, 1.5, 0), App.Vector(0, 0, 1), 12.5), math.radians(29.93), math.radians(42.07)), False)
sketch8.addGeometry(Part.ArcOfCircle(Part.Circle(App.Vector(67, 8.8, 0), App.Vector(0, 0, 1), 2), math.radians(-150), math.radians(-68)), False)
sketch8.addGeometry(Part.LineSegment(App.Vector(67.7, 6.9, 0), App.Vector(89.6, 15.8, 0)), False)
sketch8.addGeometry(Part.ArcOfCircle(Part.Circle(App.Vector(88.9, 17.6, 0), App.Vector(0, 0, 1), 2), math.radians(-68), math.radians(25)), False)
sketch8.addGeometry(Part.ArcOfCircle(Part.Circle(App.Vector(54.4, 1.5, 0), App.Vector(0, 0, 1), 40), math.radians(25), math.radians(47)), False)
sketch8.addGeometry(Part.ArcOfCircle(Part.Circle(App.Vector(80.4, 29.3, 0), App.Vector(0, 0, 1), 2), math.radians(47), math.radians(140)), False)
sketch8.addConstraint(Sketcher.Constraint("Tangent", 0, 2, 1, 1))
sketch8.addConstraint(Sketcher.Constraint("Tangent", 1, 2, 2, 2))
sketch8.addConstraint(Sketcher.Constraint("Tangent", 2, 1, 3, 1))
sketch8.addConstraint(Sketcher.Constraint("Tangent", 3, 2, 4, 1))
sketch8.addConstraint(Sketcher.Constraint("Tangent", 4, 2, 5, 1))
sketch8.addConstraint(Sketcher.Constraint("Tangent", 5, 2, 6, 1))
sketch8.addConstraint(Sketcher.Constraint("Tangent", 6, 2, 7, 1))
sketch8.addConstraint(Sketcher.Constraint("Tangent", 7, 2, 0, 1))
sketch8.addConstraint(Sketcher.Constraint("Tangent", 8, 2, 9, 1))
sketch8.addConstraint(Sketcher.Constraint("Tangent", 9, 2, 10, 2))
sketch8.addConstraint(Sketcher.Constraint("Tangent", 10, 1, 11, 1))
sketch8.addConstraint(Sketcher.Constraint("Tangent", 11, 2, 12, 1))
sketch8.addConstraint(Sketcher.Constraint("Tangent", 12, 2, 13, 1))
sketch8.addConstraint(Sketcher.Constraint("Tangent", 13, 2, 14, 1))
sketch8.addConstraint(Sketcher.Constraint("Tangent", 14, 2, 15, 1))
sketch8.addConstraint(Sketcher.Constraint("Tangent", 15, 2, 8, 1))
sketch8.addConstraint(Sketcher.Constraint("Tangent", 16, 2, 17, 1))
sketch8.addConstraint(Sketcher.Constraint("Tangent", 17, 2, 18, 2))
sketch8.addConstraint(Sketcher.Constraint("Tangent", 18, 1, 19, 1))
sketch8.addConstraint(Sketcher.Constraint("Tangent", 19, 2, 20, 1))
sketch8.addConstraint(Sketcher.Constraint("Tangent", 20, 2, 21, 1))
sketch8.addConstraint(Sketcher.Constraint("Tangent", 21, 2, 22, 1))
sketch8.addConstraint(Sketcher.Constraint("Tangent", 22, 2, 23, 1))
sketch8.addConstraint(Sketcher.Constraint("Tangent", 23, 2, 16, 1))
sketch8.addConstraint(Sketcher.Constraint("Tangent", 24, 2, 25, 1))
sketch8.addConstraint(Sketcher.Constraint("Tangent", 25, 2, 26, 2))
sketch8.addConstraint(Sketcher.Constraint("Tangent", 26, 1, 27, 1))
sketch8.addConstraint(Sketcher.Constraint("Tangent", 27, 2, 28, 1))
sketch8.addConstraint(Sketcher.Constraint("Tangent", 28, 2, 29, 1))
sketch8.addConstraint(Sketcher.Constraint("Tangent", 29, 2, 30, 1))
sketch8.addConstraint(Sketcher.Constraint("Tangent", 30, 2, 31, 1))
sketch8.addConstraint(Sketcher.Constraint("Tangent", 31, 2, 24, 1))
sketch8.addConstraint(Sketcher.Constraint("Tangent", 32, 2, 33, 1))
sketch8.addConstraint(Sketcher.Constraint("Tangent", 33, 2, 34, 2))
sketch8.addConstraint(Sketcher.Constraint("Tangent", 34, 1, 35, 1))
sketch8.addConstraint(Sketcher.Constraint("Tangent", 35, 2, 36, 1))
sketch8.addConstraint(Sketcher.Constraint("Tangent", 36, 2, 37, 1))
sketch8.addConstraint(Sketcher.Constraint("Tangent", 37, 2, 38, 1))
sketch8.addConstraint(Sketcher.Constraint("Tangent", 38, 2, 39, 1))
sketch8.addConstraint(Sketcher.Constraint("Tangent", 39, 2, 32, 1))
sketch8.addConstraint(Sketcher.Constraint("Tangent", 40, 2, 41, 1))
sketch8.addConstraint(Sketcher.Constraint("Tangent", 41, 2, 42, 2))
sketch8.addConstraint(Sketcher.Constraint("Tangent", 42, 1, 43, 1))
sketch8.addConstraint(Sketcher.Constraint("Tangent", 43, 2, 44, 1))
sketch8.addConstraint(Sketcher.Constraint("Tangent", 44, 2, 45, 1))
sketch8.addConstraint(Sketcher.Constraint("Tangent", 45, 2, 46, 1))
sketch8.addConstraint(Sketcher.Constraint("Tangent", 46, 2, 47, 1))
sketch8.addConstraint(Sketcher.Constraint("Tangent", 47, 2, 40, 1))
sketch8.addConstraint(Sketcher.Constraint("Tangent", 48, 2, 49, 1))
sketch8.addConstraint(Sketcher.Constraint("Tangent", 49, 2, 50, 2))
sketch8.addConstraint(Sketcher.Constraint("Tangent", 50, 1, 51, 1))
sketch8.addConstraint(Sketcher.Constraint("Tangent", 51, 2, 52, 1))
sketch8.addConstraint(Sketcher.Constraint("Tangent", 52, 2, 53, 1))
sketch8.addConstraint(Sketcher.Constraint("Tangent", 53, 2, 54, 1))
sketch8.addConstraint(Sketcher.Constraint("Tangent", 54, 2, 55, 1))
sketch8.addConstraint(Sketcher.Constraint("Tangent", 55, 2, 48, 1))
sketch8.addConstraint(Sketcher.Constraint("Tangent", 56, 2, 57, 1))
sketch8.addConstraint(Sketcher.Constraint("Tangent", 57, 2, 58, 2))
sketch8.addConstraint(Sketcher.Constraint("Tangent", 58, 1, 59, 1))
sketch8.addConstraint(Sketcher.Constraint("Tangent", 59, 2, 60, 1))
sketch8.addConstraint(Sketcher.Constraint("Tangent", 60, 2, 61, 1))
sketch8.addConstraint(Sketcher.Constraint("Tangent", 61, 2, 62, 1))
sketch8.addConstraint(Sketcher.Constraint("Tangent", 62, 2, 63, 1))
sketch8.addConstraint(Sketcher.Constraint("Tangent", 63, 2, 56, 1))
sketch8.addConstraint(Sketcher.Constraint("Tangent", 64, 2, 65, 1))
sketch8.addConstraint(Sketcher.Constraint("Tangent", 65, 2, 66, 2))
sketch8.addConstraint(Sketcher.Constraint("Tangent", 66, 1, 67, 1))
sketch8.addConstraint(Sketcher.Constraint("Tangent", 67, 2, 68, 1))
sketch8.addConstraint(Sketcher.Constraint("Tangent", 68, 2, 69, 1))
sketch8.addConstraint(Sketcher.Constraint("Tangent", 69, 2, 70, 1))
sketch8.addConstraint(Sketcher.Constraint("Tangent", 70, 2, 71, 1))
sketch8.addConstraint(Sketcher.Constraint("Tangent", 71, 2, 64, 1))
sketch8.addConstraint(Sketcher.Constraint("Tangent", 72, 2, 73, 1))
sketch8.addConstraint(Sketcher.Constraint("Tangent", 73, 2, 74, 2))
sketch8.addConstraint(Sketcher.Constraint("Tangent", 74, 1, 75, 1))
sketch8.addConstraint(Sketcher.Constraint("Tangent", 75, 2, 76, 1))
sketch8.addConstraint(Sketcher.Constraint("Tangent", 76, 2, 77, 1))
sketch8.addConstraint(Sketcher.Constraint("Tangent", 77, 2, 78, 1))
sketch8.addConstraint(Sketcher.Constraint("Tangent", 78, 2, 79, 1))
sketch8.addConstraint(Sketcher.Constraint("Tangent", 79, 2, 72, 1))
sketch8.addConstraint(Sketcher.Constraint("Coincident", 6, 3, 2, 3))
sketch8.addConstraint(Sketcher.Constraint("Coincident", 14, 3, 10, 3))
sketch8.addConstraint(Sketcher.Constraint("Coincident", 22, 3, 18, 3))
sketch8.addConstraint(Sketcher.Constraint("Coincident", 30, 3, 26, 3))
sketch8.addConstraint(Sketcher.Constraint("Coincident", 38, 3, 34, 3))
sketch8.addConstraint(Sketcher.Constraint("Coincident", 46, 3, 42, 3))
sketch8.addConstraint(Sketcher.Constraint("Coincident", 54, 3, 50, 3))
sketch8.addConstraint(Sketcher.Constraint("Coincident", 62, 3, 58, 3))
sketch8.addConstraint(Sketcher.Constraint("Coincident", 70, 3, 66, 3))
sketch8.addConstraint(Sketcher.Constraint("Coincident", 78, 3, 74, 3))
sketch8.addConstraint(Sketcher.Constraint("Equal", 1, 3))
sketch8.addConstraint(Sketcher.Constraint("Equal", 3, 5))
sketch8.addConstraint(Sketcher.Constraint("Equal", 5, 7))
sketch8.addConstraint(Sketcher.Constraint("Equal", 7, 9))
sketch8.addConstraint(Sketcher.Constraint("Equal", 2, 10))
sketch8.addConstraint(Sketcher.Constraint("Equal", 9, 11))
sketch8.addConstraint(Sketcher.Constraint("Equal", 11, 13))
sketch8.addConstraint(Sketcher.Constraint("Equal", 6, 14))
sketch8.addConstraint(Sketcher.Constraint("Equal", 13, 15))
sketch8.addConstraint(Sketcher.Constraint("Equal", 15, 17))
sketch8.addConstraint(Sketcher.Constraint("Equal", 10, 18))
sketch8.addConstraint(Sketcher.Constraint("Equal", 17, 19))
sketch8.addConstraint(Sketcher.Constraint("Equal", 19, 21))
sketch8.addConstraint(Sketcher.Constraint("Equal", 14, 22))
sketch8.addConstraint(Sketcher.Constraint("Equal", 21, 23))
sketch8.addConstraint(Sketcher.Constraint("Equal", 23, 25))
sketch8.addConstraint(Sketcher.Constraint("Equal", 18, 26))
sketch8.addConstraint(Sketcher.Constraint("Equal", 25, 27))
sketch8.addConstraint(Sketcher.Constraint("Equal", 27, 29))
sketch8.addConstraint(Sketcher.Constraint("Equal", 22, 30))
sketch8.addConstraint(Sketcher.Constraint("Equal", 29, 31))
sketch8.addConstraint(Sketcher.Constraint("Equal", 31, 33))
sketch8.addConstraint(Sketcher.Constraint("Equal", 26, 34))
sketch8.addConstraint(Sketcher.Constraint("Equal", 33, 35))
sketch8.addConstraint(Sketcher.Constraint("Equal", 35, 37))
sketch8.addConstraint(Sketcher.Constraint("Equal", 30, 38))
sketch8.addConstraint(Sketcher.Constraint("Equal", 37, 39))
sketch8.addConstraint(Sketcher.Constraint("Equal", 39, 41))
sketch8.addConstraint(Sketcher.Constraint("Equal", 34, 42))
sketch8.addConstraint(Sketcher.Constraint("Equal", 41, 43))
sketch8.addConstraint(Sketcher.Constraint("Equal", 43, 45))
sketch8.addConstraint(Sketcher.Constraint("Equal", 38, 46))
sketch8.addConstraint(Sketcher.Constraint("Equal", 45, 47))
sketch8.addConstraint(Sketcher.Constraint("Equal", 47, 49))
sketch8.addConstraint(Sketcher.Constraint("Equal", 42, 50))
sketch8.addConstraint(Sketcher.Constraint("Equal", 49, 51))
sketch8.addConstraint(Sketcher.Constraint("Equal", 51, 53))
sketch8.addConstraint(Sketcher.Constraint("Equal", 46, 54))
sketch8.addConstraint(Sketcher.Constraint("Equal", 53, 55))
sketch8.addConstraint(Sketcher.Constraint("Equal", 55, 57))
sketch8.addConstraint(Sketcher.Constraint("Equal", 50, 58))
sketch8.addConstraint(Sketcher.Constraint("Equal", 57, 59))
sketch8.addConstraint(Sketcher.Constraint("Equal", 59, 61))
sketch8.addConstraint(Sketcher.Constraint("Equal", 54, 62))
sketch8.addConstraint(Sketcher.Constraint("Equal", 61, 63))
sketch8.addConstraint(Sketcher.Constraint("Equal", 63, 65))
sketch8.addConstraint(Sketcher.Constraint("Equal", 58, 66))
sketch8.addConstraint(Sketcher.Constraint("Equal", 65, 67))
sketch8.addConstraint(Sketcher.Constraint("Equal", 67, 69))
sketch8.addConstraint(Sketcher.Constraint("Equal", 62, 70))
sketch8.addConstraint(Sketcher.Constraint("Equal", 69, 71))
sketch8.addConstraint(Sketcher.Constraint("Equal", 71, 73))
sketch8.addConstraint(Sketcher.Constraint("Equal", 66, 74))
sketch8.addConstraint(Sketcher.Constraint("Equal", 73, 75))
sketch8.addConstraint(Sketcher.Constraint("Equal", 75, 77))
sketch8.addConstraint(Sketcher.Constraint("Equal", 70, 78))
sketch8.addConstraint(Sketcher.Constraint("Equal", 77, 79))
sketch8.addConstraint(Sketcher.Constraint("Symmetric", 1, 3, 3, 3, -1))
sketch8.addConstraint(Sketcher.Constraint("Parallel", 0, 40))
sketch8.addConstraint(Sketcher.Constraint("Parallel", 4, 44))
sketch8.addConstraint(Sketcher.Constraint("Parallel", 8, 48))
sketch8.addConstraint(Sketcher.Constraint("Parallel", 12, 52))
sketch8.addConstraint(Sketcher.Constraint("Parallel", 16, 56))
sketch8.addConstraint(Sketcher.Constraint("Parallel", 20, 60))
sketch8.addConstraint(Sketcher.Constraint("Parallel", 24, 64))
sketch8.addConstraint(Sketcher.Constraint("Parallel", 28, 68))
sketch8.addConstraint(Sketcher.Constraint("Parallel", 32, 72))
sketch8.addConstraint(Sketcher.Constraint("Parallel", 36, 76))
sketch8.addConstraint(Sketcher.Constraint("Vertical", 5, 3, 7, 3))
sketch8.addConstraint(Sketcher.Constraint("Vertical", 41, 3, 43, 3))
sketch8.addConstraint(Sketcher.Constraint("Equal", 4, 8))
sketch8.addConstraint(Sketcher.Constraint("Equal", 8, 12))
sketch8.addConstraint(Sketcher.Constraint("Equal", 12, 16))
sketch8.addConstraint(Sketcher.Constraint("Equal", 16, 20))
sketch8.addConstraint(Sketcher.Constraint("Equal", 20, 24))
sketch8.addConstraint(Sketcher.Constraint("Equal", 24, 28))
sketch8.addConstraint(Sketcher.Constraint("Equal", 28, 32))
sketch8.addConstraint(Sketcher.Constraint("Equal", 32, 36))
sketch8.addConstraint(Sketcher.Constraint("Equal", 36, 40))
sketch8.addConstraint(Sketcher.Constraint("Equal", 44, 48))
sketch8.addConstraint(Sketcher.Constraint("Equal", 48, 52))
sketch8.addConstraint(Sketcher.Constraint("Equal", 52, 56))
sketch8.addConstraint(Sketcher.Constraint("Equal", 56, 60))
sketch8.addConstraint(Sketcher.Constraint("Equal", 60, 64))
sketch8.addConstraint(Sketcher.Constraint("Equal", 64, 68))
sketch8.addConstraint(Sketcher.Constraint("Equal", 68, 72))
sketch8.addConstraint(Sketcher.Constraint("Equal", 72, 76))
sketch8.addConstraint(Sketcher.Constraint("Radius", 1, 2.0))
sketch8.addConstraint(Sketcher.Constraint("Radius", 6, 40.0))
sketch8.addConstraint(Sketcher.Constraint("Radius", 2, 12.5))
sketch8.addConstraint(Sketcher.Constraint("Angle", 0, Q("-166 deg")))
sketch8.addConstraint(Sketcher.Constraint("Angle", 8, Q("158 deg")))
sketch8.addConstraint(Sketcher.Constraint("Angle", 12, Q("-50 deg")))
sketch8.addConstraint(Sketcher.Constraint("Angle", 16, Q("122 deg")))
sketch8.addConstraint(Sketcher.Constraint("Angle", 20, Q("-86 deg")))
sketch8.addConstraint(Sketcher.Constraint("Angle", 24, Q("86 deg")))
sketch8.addConstraint(Sketcher.Constraint("Angle", 28, Q("-122 deg")))
sketch8.addConstraint(Sketcher.Constraint("Angle", 32, Q("50 deg")))
sketch8.addConstraint(Sketcher.Constraint("Angle", 36, Q("-158 deg")))
sketch8.addConstraint(Sketcher.Constraint("DistanceX", -1, 1, 2, 3, 55.0))
sketch8.addConstraint(Sketcher.Constraint("DistanceY", -1, 1, 79, 3, 29.320999))
sketch8.addConstraint(Sketcher.Constraint("DistanceY", 5, 3, -1, 1, 7.239699))
sketch8.addConstraint(Sketcher.Constraint("DistanceY", -1, 1, 67, 3, 15.683298))
sketch8.addConstraint(Sketcher.Constraint("DistanceY", 13, 2, -1, 1, 30.826298))
sketch8.addConstraint(Sketcher.Constraint("DistanceX", -1, 1, 59, 2, 50.419802))
sketch8.addConstraint(Sketcher.Constraint("DistanceX", -1, 1, 17, 3, 59.18895))
sketch8.addConstraint(Sketcher.Constraint("DistanceY", 17, 3, -1, 1, 15.83886))
sketch8.addConstraint(Sketcher.Constraint("DistanceY", 27, 3, -1, 1, 15.908429))
sketch8.addConstraint(Sketcher.Constraint("DistanceX", -1, 1, 29, 3, 33.222789))
sketch8.addConstraint(Sketcher.Constraint("DistanceX", -1, 1, 34, 3, 50.268889))
sketch8.addConstraint(Sketcher.Constraint("DistanceY", 34, 3, -1, 1, 1.762362))
sketch8.addConstraint(Sketcher.Constraint("DistanceY", 41, 3, -1, 1, 1.758878))
sketch8.addConstraint(Sketcher.Constraint("DistanceX", -1, 1, 49, 3, 37.570109))
sketch8.addConstraint(Sketcher.Constraint("DistanceY", -1, 1, 49, 3, 8.589342))
sketch8.addConstraint(Sketcher.Constraint("DistanceY", -1, 1, 57, 3, 15.613729))
sketch8.addConstraint(Sketcher.Constraint("DistanceX", -1, 1, 71, 3, 57.702748))
sketch8.addConstraint(Sketcher.Constraint("DistanceX", -1, 1, 9, 2, 65.39285))
sketch8.addConstraint(Sketcher.Constraint("DistanceX", -1, 1, 40, 2, 35.761452))
sketch8.addConstraint(Sketcher.Constraint("DistanceX", -1, 1, 72, 2, 63.658708))
pocket4 = doc.addObject("PartDesign::Pocket", "Pocket003")
body.addObject(pocket4)
pocket4.Profile = sketch8
pocket4.Length = 5

doc.recompute()
